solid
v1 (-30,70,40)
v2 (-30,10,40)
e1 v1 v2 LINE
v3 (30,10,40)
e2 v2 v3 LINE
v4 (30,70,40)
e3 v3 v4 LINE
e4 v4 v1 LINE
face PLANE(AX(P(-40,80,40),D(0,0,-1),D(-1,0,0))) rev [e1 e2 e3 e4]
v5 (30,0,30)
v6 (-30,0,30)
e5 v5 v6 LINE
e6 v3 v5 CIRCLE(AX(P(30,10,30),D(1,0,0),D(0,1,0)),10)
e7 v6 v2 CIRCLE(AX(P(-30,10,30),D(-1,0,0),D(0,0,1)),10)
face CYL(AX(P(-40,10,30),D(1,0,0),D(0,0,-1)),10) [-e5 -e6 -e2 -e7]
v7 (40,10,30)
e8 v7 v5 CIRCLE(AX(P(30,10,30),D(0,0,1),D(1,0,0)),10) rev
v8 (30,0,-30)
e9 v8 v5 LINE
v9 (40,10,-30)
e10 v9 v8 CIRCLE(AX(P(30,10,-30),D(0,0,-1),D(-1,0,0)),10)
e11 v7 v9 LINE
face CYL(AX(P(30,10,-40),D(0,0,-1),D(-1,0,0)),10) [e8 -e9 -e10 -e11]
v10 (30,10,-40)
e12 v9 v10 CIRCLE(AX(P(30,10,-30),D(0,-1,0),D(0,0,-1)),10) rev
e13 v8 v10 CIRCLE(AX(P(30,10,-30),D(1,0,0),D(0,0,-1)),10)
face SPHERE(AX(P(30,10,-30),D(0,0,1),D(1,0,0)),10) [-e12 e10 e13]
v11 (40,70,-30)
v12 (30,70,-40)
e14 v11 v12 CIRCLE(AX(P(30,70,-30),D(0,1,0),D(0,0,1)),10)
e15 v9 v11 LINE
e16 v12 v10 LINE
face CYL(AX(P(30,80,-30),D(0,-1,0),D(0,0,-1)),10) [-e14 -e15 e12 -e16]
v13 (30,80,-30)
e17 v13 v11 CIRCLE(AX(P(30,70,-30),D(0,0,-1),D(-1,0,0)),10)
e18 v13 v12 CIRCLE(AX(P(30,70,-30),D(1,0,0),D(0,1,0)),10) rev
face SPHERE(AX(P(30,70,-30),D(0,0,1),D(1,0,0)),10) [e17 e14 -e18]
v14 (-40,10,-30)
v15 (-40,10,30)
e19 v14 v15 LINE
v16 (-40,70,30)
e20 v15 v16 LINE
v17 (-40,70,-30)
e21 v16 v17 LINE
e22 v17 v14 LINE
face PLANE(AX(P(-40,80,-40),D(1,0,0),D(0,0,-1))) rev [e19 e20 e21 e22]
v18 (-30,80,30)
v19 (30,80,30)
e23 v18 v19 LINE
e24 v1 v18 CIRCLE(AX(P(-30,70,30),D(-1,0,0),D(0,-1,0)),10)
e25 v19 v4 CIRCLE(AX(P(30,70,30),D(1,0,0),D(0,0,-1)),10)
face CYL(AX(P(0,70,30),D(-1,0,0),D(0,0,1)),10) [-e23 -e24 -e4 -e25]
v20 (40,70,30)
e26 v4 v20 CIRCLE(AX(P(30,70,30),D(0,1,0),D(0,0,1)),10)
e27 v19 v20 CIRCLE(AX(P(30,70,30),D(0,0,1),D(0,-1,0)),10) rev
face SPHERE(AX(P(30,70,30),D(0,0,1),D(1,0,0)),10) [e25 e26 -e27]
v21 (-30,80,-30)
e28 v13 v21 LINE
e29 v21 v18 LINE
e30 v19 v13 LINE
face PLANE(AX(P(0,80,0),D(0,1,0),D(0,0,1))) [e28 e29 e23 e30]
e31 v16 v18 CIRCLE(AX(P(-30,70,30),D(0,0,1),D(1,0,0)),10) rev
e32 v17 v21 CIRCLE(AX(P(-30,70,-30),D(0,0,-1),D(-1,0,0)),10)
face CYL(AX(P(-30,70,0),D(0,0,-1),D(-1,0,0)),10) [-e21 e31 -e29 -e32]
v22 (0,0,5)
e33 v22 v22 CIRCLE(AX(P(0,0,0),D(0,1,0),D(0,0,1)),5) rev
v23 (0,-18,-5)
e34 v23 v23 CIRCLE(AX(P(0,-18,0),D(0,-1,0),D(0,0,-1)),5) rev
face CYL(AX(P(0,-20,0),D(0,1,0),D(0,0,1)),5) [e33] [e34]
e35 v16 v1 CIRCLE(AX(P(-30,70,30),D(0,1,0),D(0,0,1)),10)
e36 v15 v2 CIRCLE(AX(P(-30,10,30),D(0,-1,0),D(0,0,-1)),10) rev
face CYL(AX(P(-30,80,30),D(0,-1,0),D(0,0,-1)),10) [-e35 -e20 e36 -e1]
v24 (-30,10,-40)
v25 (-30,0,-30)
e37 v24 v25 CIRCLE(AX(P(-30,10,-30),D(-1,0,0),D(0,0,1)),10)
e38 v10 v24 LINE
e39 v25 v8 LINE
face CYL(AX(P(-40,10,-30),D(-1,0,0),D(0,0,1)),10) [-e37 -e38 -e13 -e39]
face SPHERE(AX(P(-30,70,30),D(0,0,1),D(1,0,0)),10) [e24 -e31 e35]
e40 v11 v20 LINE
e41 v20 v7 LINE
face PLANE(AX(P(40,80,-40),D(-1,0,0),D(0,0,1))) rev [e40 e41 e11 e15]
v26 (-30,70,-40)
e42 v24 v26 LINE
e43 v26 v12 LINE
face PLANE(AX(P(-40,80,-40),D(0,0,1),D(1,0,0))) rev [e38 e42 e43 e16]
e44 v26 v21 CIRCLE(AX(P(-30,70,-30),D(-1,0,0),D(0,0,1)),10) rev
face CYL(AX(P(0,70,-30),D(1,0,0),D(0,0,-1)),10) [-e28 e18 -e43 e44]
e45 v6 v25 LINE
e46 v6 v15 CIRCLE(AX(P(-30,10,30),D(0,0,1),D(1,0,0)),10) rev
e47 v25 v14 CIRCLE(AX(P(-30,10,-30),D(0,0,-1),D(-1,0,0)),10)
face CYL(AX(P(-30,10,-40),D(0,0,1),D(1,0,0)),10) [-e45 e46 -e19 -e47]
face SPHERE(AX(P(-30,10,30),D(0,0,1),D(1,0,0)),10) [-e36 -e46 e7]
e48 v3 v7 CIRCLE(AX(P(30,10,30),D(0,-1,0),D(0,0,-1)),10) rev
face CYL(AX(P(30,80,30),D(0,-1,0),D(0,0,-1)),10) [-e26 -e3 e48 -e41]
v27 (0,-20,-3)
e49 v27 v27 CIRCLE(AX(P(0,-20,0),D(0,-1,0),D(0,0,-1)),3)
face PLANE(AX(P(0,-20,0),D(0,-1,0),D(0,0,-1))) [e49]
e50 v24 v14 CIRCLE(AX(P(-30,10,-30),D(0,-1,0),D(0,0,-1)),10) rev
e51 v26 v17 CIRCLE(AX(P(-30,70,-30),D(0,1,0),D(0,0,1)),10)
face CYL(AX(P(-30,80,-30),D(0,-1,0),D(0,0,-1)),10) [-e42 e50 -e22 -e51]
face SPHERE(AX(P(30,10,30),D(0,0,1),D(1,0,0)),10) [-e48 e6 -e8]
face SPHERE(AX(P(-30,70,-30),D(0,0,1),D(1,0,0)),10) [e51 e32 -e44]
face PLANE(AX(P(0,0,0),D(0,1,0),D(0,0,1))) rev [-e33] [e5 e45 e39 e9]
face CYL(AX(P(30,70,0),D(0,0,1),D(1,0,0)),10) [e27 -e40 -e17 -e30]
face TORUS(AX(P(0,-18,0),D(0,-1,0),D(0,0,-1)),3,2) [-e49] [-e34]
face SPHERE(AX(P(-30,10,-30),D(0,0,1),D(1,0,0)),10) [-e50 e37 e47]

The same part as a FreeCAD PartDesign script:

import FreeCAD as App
import Part
import Sketcher
from FreeCAD import Vector
Q = App.Units.Quantity


def edges_at(feature, points):
    """Names of the edges that pass closest to the given points."""
    edges = feature.Shape.Edges
    near = lambda p: min(range(len(edges)), key=lambda i: edges[i].distToShape(Part.Vertex(*p))[0])
    return sorted({f"Edge{near(p) + 1}" for p in points})

doc = App.newDocument("Part")
body = doc.addObject("PartDesign::Body", "Body")

sketch1 = doc.addObject("Sketcher::SketchObject", "Sketch")
body.addObject(sketch1)
sketch1.AttachmentSupport = (doc.XZ_Plane, [""])
sketch1.MapMode = "FlatFace"
sketch1.addGeometry(Part.LineSegment(Vector(-40, -40, 0), Vector(-40, 40, 0)), False)
sketch1.addGeometry(Part.LineSegment(Vector(-40, 40, 0), Vector(40, 40, 0)), False)
sketch1.addGeometry(Part.LineSegment(Vector(40, 40, 0), Vector(40, -40, 0)), False)
sketch1.addGeometry(Part.LineSegment(Vector(40, -40, 0), Vector(-40, -40, 0)), False)
sketch1.addConstraint(Sketcher.Constraint("Coincident", 0, 2, 1, 1))
sketch1.addConstraint(Sketcher.Constraint("Coincident", 1, 2, 2, 1))
sketch1.addConstraint(Sketcher.Constraint("Coincident", 2, 2, 3, 1))
sketch1.addConstraint(Sketcher.Constraint("Coincident", 3, 2, 0, 1))
sketch1.addConstraint(Sketcher.Constraint("Vertical", 0))
sketch1.addConstraint(Sketcher.Constraint("Horizontal", 1))
sketch1.addConstraint(Sketcher.Constraint("Vertical", 2))
sketch1.addConstraint(Sketcher.Constraint("Horizontal", 3))
sketch1.addConstraint(Sketcher.Constraint("Symmetric", 0, 2, 2, 2, -1, 1))
sketch1.addConstraint(Sketcher.Constraint("Equal", 3, 0))
sketch1.addConstraint(Sketcher.Constraint("DistanceX", 1, 1, 1, 2, Q("80 mm")))
pad1 = doc.addObject("PartDesign::Pad", "Pad")
body.addObject(pad1)
pad1.Profile = sketch1
pad1.Length = 80
pad1.Reversed = True

sketch2 = doc.addObject("Sketcher::SketchObject", "Sketch001")
body.addObject(sketch2)
sketch2.AttachmentSupport = (doc.XZ_Plane, [""])
sketch2.MapMode = "FlatFace"
sketch2.addGeometry(Part.Circle(Vector(0, 0, 0), Vector(0, 0, 1), 5), False)
sketch2.addConstraint(Sketcher.Constraint("Coincident", 0, 3, -1, 1))
sketch2.addConstraint(Sketcher.Constraint("Diameter", 0, Q("10 mm")))
pad2 = doc.addObject("PartDesign::Pad", "Pad001")
body.addObject(pad2)
pad2.Profile = sketch2
pad2.Length = 20
doc.recompute()

fillet = doc.addObject("PartDesign::Fillet", "Fillet")
body.addObject(fillet)
fillet.Base = (pad2, edges_at(pad2, [
    (-40, 80, 0),
    (0, 80, 40),
    (40, 80, 0),
    (0, 0, 40),
    (-40, 0, 0),
    (0, 0, -40),
    (40, 0, 0),
    (40, 40, 40),
    (-40, 40, 40),
    (-40, 40, -40),
    (40, 40, -40),
    (0, 80, -40),
]))
fillet.Radius = 10
doc.recompute()

fillet2 = doc.addObject("PartDesign::Fillet", "Fillet001")
body.addObject(fillet2)
fillet2.Base = (fillet, edges_at(fillet, [(0, -20, -5)]))
fillet2.Radius = 2

doc.recompute()
